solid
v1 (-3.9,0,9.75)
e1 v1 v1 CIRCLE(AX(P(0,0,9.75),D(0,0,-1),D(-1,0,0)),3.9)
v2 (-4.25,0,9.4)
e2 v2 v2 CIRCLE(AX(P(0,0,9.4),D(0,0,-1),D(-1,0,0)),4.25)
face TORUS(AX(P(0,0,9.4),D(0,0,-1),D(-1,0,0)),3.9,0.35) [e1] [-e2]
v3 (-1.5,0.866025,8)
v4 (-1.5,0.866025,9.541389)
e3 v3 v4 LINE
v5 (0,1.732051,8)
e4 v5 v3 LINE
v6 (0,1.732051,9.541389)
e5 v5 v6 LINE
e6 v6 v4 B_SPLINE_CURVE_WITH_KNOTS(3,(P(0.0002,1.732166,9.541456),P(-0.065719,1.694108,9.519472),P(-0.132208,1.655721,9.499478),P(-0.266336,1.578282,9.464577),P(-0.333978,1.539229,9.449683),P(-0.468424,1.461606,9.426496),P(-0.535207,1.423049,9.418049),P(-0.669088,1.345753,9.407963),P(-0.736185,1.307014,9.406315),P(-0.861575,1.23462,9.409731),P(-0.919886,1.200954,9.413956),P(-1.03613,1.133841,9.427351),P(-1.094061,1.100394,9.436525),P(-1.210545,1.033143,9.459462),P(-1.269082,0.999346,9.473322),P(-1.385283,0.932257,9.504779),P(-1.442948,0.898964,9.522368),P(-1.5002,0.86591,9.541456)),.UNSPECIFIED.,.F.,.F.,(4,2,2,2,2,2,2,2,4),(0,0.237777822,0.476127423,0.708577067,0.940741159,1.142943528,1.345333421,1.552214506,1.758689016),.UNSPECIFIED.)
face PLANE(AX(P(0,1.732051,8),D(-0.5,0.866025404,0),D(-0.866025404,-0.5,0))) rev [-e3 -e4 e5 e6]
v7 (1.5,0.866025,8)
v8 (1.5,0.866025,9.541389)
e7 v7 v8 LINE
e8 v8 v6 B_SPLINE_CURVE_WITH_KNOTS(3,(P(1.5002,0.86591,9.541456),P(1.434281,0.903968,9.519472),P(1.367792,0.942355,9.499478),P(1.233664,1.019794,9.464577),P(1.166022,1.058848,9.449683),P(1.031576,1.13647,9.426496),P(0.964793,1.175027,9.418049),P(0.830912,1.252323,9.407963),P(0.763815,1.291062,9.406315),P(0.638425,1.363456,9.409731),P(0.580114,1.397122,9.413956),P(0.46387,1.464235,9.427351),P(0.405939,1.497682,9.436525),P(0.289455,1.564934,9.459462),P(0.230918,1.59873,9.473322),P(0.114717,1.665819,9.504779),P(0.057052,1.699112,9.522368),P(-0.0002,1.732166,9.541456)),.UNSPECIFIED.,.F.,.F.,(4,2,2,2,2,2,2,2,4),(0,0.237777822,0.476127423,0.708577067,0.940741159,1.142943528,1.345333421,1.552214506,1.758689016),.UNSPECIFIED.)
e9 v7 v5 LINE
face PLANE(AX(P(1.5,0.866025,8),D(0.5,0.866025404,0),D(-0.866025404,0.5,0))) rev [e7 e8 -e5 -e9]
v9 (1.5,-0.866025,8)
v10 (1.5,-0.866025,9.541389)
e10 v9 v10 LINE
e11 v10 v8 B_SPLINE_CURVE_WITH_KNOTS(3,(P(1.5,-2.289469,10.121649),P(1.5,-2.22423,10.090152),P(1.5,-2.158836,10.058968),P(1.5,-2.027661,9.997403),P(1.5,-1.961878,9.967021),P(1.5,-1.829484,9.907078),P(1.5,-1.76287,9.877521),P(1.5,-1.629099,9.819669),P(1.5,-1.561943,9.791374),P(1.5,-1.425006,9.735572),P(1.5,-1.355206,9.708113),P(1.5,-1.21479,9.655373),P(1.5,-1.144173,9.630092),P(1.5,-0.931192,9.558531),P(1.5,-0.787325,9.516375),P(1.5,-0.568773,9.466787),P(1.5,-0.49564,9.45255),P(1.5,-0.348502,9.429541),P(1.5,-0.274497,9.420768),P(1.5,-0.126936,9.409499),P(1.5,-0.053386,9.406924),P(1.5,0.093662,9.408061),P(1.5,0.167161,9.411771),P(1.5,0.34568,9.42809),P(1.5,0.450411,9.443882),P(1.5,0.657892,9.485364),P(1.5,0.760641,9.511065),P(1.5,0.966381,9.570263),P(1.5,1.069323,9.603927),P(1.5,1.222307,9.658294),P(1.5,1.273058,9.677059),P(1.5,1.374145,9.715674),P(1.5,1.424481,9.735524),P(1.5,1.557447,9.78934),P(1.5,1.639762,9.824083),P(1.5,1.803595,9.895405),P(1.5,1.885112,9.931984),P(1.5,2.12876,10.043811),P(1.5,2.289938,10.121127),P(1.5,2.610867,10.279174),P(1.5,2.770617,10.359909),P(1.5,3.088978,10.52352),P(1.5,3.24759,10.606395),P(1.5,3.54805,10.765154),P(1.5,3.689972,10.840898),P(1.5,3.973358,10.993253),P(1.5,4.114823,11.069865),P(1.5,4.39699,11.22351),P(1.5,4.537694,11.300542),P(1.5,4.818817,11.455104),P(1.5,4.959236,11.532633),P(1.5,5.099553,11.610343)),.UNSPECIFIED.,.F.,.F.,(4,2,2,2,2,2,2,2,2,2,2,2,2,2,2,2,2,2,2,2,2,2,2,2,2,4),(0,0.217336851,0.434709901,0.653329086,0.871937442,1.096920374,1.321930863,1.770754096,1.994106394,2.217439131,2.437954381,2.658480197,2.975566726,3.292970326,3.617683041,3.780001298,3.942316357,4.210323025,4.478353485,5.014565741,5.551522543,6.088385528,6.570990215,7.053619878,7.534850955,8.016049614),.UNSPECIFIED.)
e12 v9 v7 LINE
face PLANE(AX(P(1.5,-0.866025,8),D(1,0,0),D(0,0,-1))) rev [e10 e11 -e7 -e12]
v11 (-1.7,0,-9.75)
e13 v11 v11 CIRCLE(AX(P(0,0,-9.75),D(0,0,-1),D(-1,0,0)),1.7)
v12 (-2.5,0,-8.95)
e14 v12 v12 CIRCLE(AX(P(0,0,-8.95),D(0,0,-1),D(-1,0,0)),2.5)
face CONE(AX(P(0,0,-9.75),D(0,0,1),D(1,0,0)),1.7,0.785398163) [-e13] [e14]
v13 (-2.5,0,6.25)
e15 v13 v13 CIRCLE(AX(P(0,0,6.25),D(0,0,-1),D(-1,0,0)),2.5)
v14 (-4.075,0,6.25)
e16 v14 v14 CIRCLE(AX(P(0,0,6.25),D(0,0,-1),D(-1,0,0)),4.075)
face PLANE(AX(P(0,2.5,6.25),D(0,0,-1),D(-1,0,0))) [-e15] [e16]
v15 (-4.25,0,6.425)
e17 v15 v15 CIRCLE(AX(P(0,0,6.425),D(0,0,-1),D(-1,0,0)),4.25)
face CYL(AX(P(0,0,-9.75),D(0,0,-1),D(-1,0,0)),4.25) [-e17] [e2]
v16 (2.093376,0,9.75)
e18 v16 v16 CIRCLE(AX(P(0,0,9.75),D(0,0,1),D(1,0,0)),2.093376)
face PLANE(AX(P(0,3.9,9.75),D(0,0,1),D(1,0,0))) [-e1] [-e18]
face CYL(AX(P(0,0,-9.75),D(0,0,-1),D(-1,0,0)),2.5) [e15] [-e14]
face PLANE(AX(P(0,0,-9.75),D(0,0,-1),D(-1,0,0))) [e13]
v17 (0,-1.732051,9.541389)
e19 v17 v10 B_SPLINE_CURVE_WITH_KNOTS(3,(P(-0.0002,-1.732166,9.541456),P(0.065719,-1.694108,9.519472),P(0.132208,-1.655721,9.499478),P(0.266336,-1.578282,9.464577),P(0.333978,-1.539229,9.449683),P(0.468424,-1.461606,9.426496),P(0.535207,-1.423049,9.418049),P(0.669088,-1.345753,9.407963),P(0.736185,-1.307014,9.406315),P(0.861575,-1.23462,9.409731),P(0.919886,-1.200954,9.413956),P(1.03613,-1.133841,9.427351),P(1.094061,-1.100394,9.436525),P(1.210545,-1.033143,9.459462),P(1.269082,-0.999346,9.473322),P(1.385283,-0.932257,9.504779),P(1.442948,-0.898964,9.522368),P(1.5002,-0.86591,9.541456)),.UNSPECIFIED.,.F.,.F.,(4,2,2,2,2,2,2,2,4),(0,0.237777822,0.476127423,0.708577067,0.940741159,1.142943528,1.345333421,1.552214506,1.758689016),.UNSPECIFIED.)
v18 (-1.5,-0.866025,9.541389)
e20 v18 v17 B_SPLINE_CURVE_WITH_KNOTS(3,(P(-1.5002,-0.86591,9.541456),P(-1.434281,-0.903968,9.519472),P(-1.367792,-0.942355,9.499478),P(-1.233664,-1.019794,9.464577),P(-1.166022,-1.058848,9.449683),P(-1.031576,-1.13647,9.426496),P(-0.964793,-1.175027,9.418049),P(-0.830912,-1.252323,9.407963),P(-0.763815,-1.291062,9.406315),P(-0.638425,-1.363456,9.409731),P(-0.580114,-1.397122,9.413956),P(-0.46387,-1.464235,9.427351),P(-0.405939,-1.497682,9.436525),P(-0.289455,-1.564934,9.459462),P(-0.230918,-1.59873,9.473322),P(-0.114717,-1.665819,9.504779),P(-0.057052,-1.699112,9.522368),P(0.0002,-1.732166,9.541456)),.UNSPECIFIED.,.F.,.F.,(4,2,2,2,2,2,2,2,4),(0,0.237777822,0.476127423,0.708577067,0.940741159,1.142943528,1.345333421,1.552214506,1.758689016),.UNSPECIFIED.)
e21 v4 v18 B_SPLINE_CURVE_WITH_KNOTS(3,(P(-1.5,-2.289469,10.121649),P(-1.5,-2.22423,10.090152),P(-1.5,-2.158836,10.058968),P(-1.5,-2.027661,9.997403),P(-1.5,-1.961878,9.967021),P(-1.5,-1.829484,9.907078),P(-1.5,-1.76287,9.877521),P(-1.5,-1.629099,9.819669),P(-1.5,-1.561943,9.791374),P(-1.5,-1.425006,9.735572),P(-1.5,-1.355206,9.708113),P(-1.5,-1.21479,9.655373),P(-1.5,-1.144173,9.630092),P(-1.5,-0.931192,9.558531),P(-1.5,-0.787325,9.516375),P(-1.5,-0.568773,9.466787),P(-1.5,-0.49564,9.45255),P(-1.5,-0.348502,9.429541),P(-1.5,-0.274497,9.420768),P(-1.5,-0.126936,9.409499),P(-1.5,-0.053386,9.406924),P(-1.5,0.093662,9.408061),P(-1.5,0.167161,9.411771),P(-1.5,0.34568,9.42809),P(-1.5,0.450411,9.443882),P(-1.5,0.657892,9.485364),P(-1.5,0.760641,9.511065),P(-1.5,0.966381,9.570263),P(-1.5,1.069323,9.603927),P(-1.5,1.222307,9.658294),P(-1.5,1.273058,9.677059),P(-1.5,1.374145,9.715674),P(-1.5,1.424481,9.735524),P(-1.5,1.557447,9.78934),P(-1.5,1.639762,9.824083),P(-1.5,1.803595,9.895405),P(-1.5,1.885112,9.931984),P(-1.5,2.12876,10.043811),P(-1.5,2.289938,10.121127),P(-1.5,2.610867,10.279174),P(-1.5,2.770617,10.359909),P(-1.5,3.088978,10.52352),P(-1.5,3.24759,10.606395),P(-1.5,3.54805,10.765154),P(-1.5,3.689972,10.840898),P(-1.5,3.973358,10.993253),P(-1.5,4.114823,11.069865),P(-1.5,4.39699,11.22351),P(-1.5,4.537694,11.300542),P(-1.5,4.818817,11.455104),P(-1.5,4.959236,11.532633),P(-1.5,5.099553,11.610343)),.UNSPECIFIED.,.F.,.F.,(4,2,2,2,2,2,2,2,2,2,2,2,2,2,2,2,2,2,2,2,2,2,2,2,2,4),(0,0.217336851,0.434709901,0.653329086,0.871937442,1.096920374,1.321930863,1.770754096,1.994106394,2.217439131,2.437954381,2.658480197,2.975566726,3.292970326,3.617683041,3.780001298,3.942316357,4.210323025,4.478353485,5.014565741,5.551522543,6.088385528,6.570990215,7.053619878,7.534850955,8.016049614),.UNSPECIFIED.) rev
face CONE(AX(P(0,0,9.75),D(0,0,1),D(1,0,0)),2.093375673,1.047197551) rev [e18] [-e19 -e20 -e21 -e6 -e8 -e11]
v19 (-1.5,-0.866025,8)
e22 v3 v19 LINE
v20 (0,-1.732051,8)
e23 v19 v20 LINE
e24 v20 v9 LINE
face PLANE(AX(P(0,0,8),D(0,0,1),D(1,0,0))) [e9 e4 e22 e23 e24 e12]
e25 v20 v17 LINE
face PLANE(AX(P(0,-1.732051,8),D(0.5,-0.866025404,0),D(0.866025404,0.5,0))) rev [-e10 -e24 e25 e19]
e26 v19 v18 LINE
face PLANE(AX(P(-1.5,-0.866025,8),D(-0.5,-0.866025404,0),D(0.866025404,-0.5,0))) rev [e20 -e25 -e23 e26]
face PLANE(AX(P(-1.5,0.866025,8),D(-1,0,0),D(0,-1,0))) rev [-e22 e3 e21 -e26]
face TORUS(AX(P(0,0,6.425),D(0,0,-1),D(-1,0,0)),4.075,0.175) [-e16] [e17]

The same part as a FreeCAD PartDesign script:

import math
import FreeCAD as App
import Part
import Sketcher
from FreeCAD import Vector
Q = App.Units.Quantity


def add_polygon(sketch, points):
    """Adds a closed chain of lines whose ends are joined by coincident constraints."""
    first, n = sketch.GeometryCount, len(points)
    for a, b in zip(points, points[1:] + points[:1]):
        sketch.addGeometry(Part.LineSegment(App.Vector(*a, 0), App.Vector(*b, 0)), False)
    for i in range(n):
        sketch.addConstraint(Sketcher.Constraint("Coincident", first + i, 2, first + (i + 1) % n, 1))

doc = App.newDocument("Part")
body = doc.addObject("PartDesign::Body", "Body")

# Sketch on YZ plane
sketch1 = body.newObject("Sketcher::SketchObject", "Sketch")
sketch1.AttachmentSupport = (doc.getObject("YZ_Plane"), [""])
sketch1.MapMode = "FlatFace"
sketch1.addGeometry([
    Part.LineSegment(Vector(0, -9.75, 0), Vector(1.7, -9.75, 0)),  # 0
    Part.LineSegment(Vector(1.7, -9.75, 0), Vector(2.5, -8.95, 0)),  # 1
    Part.LineSegment(Vector(2.5, -8.95, 0), Vector(2.5, 6.25, 0)),  # 2
    Part.LineSegment(Vector(2.5, 6.25, 0), Vector(4.075, 6.25, 0)),  # 3
    Part.ArcOfCircle(Part.Circle(Vector(4.075, 6.425, 0), Vector(0, 0, 1), 0.175), math.radians(-90), math.radians(0)),  # 4
    Part.LineSegment(Vector(4.25, 6.425, 0), Vector(4.25, 9.4, 0)),  # 5
    Part.ArcOfCircle(Part.Circle(Vector(3.9, 9.4, 0), Vector(0, 0, 1), 0.35), math.radians(0), math.radians(90)),  # 6
    Part.LineSegment(Vector(3.9, 9.75, 0), Vector(0, 9.75, 0)),  # 7
    Part.LineSegment(Vector(0, 9.75, 0), Vector(0, -9.75, 0)),  # 8
], False)
sketch1.addConstraint([
    Sketcher.Constraint("Coincident", 0, 2, 1, 1),
    Sketcher.Constraint("Coincident", 1, 2, 2, 1),
    Sketcher.Constraint("Coincident", 2, 2, 3, 1),
    Sketcher.Constraint("Tangent", 3, 2, 4, 1),
    Sketcher.Constraint("Tangent", 4, 2, 5, 1),
    Sketcher.Constraint("Tangent", 5, 2, 6, 1),
    Sketcher.Constraint("Tangent", 6, 2, 7, 1),
    Sketcher.Constraint("Coincident", 7, 2, 8, 1),
    Sketcher.Constraint("Coincident", 8, 2, 0, 1),
    Sketcher.Constraint("Horizontal", 0),
    Sketcher.Constraint("Vertical", 2),
    Sketcher.Constraint("Horizontal", 3),
    Sketcher.Constraint("Vertical", 5),
    Sketcher.Constraint("Horizontal", 7),
    Sketcher.Constraint("Vertical", 8),
    Sketcher.Constraint("Symmetric", 7, 2, 8, 2, -1, 1),
    Sketcher.Constraint("Angle", 1, Q("45 deg")),
    Sketcher.Constraint("Radius", 6, Q("0.35 mm")),
    Sketcher.Constraint("DistanceX", 0, 1, 0, 2, Q("1.7 mm")),
    Sketcher.Constraint("DistanceX", 7, 2, 7, 1, Q("3.9 mm")),
    Sketcher.Constraint("DistanceY", 2, 1, 2, 2, Q("15.2 mm")),
    Sketcher.Constraint("DistanceY", 8, 2, 8, 1, Q("19.5 mm")),
    Sketcher.Constraint("Radius", 4, Q("0.175 mm")),
    Sketcher.Constraint("DistanceY", 0, 2, 2, 2, Q("16 mm")),
])
revolution = body.newObject("PartDesign::Revolution", "Revolution")
revolution.Profile = sketch1
revolution.ReferenceAxis = (sketch1, ["V_Axis"])
revolution.Angle = 360

# Sketch on XY plane
sketch2 = body.newObject("Sketcher::SketchObject", "Sketch001")
sketch2.AttachmentSupport = (doc.getObject("XY_Plane"), [""])
sketch2.MapMode = "FlatFace"
sketch2.AttachmentOffset = App.Placement(Vector(0, 0, 9.75), App.Rotation())
add_polygon(sketch2, [(-1.5, 0.866025), (-1.5, -0.866025), (0, -1.732051), (1.5, -0.866025), (1.5, 0.866025), (0, 1.732051)])  # lines 0-5
sketch2.addConstraint([
    Sketcher.Constraint("Vertical", 0),
    Sketcher.Constraint("Vertical", 3),
    Sketcher.Constraint("Symmetric", 0, 2, 3, 2, -1, 1),
    Sketcher.Constraint("Symmetric", 1, 2, 4, 2, -1, 1),
    Sketcher.Constraint("PointOnObject", 1, 2, -2),
    Sketcher.Constraint("Parallel", 2, 5),
    Sketcher.Constraint("Horizontal", 0, 2, 2, 2),
    Sketcher.Constraint("Angle", 1, Q("-30 deg")),
    Sketcher.Constraint("DistanceX", 0, 2, 2, 2, Q("3 mm")),
    Sketcher.Constraint("DistanceY", 0, 2, 0, 1, Q("1.732051 mm")),
])
pocket1 = body.newObject("PartDesign::Pocket", "Pocket")
pocket1.Profile = sketch2
pocket1.Length = 1.75

# Sketch on YZ plane
sketch3 = body.newObject("Sketcher::SketchObject", "Sketch002")
sketch3.AttachmentSupport = (doc.getObject("YZ_Plane"), [""])
sketch3.MapMode = "FlatFace"
add_polygon(sketch3, [(0, 9.75), (-2.093376, 9.75), (0, 8.541389)])  # lines 0-2
sketch3.addConstraint([
    Sketcher.Constraint("Horizontal", 0),
    Sketcher.Constraint("Vertical", 2),
    Sketcher.Constraint("PointOnObject", 1, 2, -2),
    Sketcher.Constraint("Angle", 1, Q("-30 deg")),
    Sketcher.Constraint("DistanceY", -1, 1, 0, 2, Q("9.75 mm")),
    Sketcher.Constraint("DistanceY", 2, 1, 2, 2, Q("1.208611 mm")),
])
groove = body.newObject("PartDesign::Groove", "Groove")
groove.Profile = sketch3
groove.ReferenceAxis = (sketch3, ["V_Axis"])
groove.Angle = 360

doc.recompute()
